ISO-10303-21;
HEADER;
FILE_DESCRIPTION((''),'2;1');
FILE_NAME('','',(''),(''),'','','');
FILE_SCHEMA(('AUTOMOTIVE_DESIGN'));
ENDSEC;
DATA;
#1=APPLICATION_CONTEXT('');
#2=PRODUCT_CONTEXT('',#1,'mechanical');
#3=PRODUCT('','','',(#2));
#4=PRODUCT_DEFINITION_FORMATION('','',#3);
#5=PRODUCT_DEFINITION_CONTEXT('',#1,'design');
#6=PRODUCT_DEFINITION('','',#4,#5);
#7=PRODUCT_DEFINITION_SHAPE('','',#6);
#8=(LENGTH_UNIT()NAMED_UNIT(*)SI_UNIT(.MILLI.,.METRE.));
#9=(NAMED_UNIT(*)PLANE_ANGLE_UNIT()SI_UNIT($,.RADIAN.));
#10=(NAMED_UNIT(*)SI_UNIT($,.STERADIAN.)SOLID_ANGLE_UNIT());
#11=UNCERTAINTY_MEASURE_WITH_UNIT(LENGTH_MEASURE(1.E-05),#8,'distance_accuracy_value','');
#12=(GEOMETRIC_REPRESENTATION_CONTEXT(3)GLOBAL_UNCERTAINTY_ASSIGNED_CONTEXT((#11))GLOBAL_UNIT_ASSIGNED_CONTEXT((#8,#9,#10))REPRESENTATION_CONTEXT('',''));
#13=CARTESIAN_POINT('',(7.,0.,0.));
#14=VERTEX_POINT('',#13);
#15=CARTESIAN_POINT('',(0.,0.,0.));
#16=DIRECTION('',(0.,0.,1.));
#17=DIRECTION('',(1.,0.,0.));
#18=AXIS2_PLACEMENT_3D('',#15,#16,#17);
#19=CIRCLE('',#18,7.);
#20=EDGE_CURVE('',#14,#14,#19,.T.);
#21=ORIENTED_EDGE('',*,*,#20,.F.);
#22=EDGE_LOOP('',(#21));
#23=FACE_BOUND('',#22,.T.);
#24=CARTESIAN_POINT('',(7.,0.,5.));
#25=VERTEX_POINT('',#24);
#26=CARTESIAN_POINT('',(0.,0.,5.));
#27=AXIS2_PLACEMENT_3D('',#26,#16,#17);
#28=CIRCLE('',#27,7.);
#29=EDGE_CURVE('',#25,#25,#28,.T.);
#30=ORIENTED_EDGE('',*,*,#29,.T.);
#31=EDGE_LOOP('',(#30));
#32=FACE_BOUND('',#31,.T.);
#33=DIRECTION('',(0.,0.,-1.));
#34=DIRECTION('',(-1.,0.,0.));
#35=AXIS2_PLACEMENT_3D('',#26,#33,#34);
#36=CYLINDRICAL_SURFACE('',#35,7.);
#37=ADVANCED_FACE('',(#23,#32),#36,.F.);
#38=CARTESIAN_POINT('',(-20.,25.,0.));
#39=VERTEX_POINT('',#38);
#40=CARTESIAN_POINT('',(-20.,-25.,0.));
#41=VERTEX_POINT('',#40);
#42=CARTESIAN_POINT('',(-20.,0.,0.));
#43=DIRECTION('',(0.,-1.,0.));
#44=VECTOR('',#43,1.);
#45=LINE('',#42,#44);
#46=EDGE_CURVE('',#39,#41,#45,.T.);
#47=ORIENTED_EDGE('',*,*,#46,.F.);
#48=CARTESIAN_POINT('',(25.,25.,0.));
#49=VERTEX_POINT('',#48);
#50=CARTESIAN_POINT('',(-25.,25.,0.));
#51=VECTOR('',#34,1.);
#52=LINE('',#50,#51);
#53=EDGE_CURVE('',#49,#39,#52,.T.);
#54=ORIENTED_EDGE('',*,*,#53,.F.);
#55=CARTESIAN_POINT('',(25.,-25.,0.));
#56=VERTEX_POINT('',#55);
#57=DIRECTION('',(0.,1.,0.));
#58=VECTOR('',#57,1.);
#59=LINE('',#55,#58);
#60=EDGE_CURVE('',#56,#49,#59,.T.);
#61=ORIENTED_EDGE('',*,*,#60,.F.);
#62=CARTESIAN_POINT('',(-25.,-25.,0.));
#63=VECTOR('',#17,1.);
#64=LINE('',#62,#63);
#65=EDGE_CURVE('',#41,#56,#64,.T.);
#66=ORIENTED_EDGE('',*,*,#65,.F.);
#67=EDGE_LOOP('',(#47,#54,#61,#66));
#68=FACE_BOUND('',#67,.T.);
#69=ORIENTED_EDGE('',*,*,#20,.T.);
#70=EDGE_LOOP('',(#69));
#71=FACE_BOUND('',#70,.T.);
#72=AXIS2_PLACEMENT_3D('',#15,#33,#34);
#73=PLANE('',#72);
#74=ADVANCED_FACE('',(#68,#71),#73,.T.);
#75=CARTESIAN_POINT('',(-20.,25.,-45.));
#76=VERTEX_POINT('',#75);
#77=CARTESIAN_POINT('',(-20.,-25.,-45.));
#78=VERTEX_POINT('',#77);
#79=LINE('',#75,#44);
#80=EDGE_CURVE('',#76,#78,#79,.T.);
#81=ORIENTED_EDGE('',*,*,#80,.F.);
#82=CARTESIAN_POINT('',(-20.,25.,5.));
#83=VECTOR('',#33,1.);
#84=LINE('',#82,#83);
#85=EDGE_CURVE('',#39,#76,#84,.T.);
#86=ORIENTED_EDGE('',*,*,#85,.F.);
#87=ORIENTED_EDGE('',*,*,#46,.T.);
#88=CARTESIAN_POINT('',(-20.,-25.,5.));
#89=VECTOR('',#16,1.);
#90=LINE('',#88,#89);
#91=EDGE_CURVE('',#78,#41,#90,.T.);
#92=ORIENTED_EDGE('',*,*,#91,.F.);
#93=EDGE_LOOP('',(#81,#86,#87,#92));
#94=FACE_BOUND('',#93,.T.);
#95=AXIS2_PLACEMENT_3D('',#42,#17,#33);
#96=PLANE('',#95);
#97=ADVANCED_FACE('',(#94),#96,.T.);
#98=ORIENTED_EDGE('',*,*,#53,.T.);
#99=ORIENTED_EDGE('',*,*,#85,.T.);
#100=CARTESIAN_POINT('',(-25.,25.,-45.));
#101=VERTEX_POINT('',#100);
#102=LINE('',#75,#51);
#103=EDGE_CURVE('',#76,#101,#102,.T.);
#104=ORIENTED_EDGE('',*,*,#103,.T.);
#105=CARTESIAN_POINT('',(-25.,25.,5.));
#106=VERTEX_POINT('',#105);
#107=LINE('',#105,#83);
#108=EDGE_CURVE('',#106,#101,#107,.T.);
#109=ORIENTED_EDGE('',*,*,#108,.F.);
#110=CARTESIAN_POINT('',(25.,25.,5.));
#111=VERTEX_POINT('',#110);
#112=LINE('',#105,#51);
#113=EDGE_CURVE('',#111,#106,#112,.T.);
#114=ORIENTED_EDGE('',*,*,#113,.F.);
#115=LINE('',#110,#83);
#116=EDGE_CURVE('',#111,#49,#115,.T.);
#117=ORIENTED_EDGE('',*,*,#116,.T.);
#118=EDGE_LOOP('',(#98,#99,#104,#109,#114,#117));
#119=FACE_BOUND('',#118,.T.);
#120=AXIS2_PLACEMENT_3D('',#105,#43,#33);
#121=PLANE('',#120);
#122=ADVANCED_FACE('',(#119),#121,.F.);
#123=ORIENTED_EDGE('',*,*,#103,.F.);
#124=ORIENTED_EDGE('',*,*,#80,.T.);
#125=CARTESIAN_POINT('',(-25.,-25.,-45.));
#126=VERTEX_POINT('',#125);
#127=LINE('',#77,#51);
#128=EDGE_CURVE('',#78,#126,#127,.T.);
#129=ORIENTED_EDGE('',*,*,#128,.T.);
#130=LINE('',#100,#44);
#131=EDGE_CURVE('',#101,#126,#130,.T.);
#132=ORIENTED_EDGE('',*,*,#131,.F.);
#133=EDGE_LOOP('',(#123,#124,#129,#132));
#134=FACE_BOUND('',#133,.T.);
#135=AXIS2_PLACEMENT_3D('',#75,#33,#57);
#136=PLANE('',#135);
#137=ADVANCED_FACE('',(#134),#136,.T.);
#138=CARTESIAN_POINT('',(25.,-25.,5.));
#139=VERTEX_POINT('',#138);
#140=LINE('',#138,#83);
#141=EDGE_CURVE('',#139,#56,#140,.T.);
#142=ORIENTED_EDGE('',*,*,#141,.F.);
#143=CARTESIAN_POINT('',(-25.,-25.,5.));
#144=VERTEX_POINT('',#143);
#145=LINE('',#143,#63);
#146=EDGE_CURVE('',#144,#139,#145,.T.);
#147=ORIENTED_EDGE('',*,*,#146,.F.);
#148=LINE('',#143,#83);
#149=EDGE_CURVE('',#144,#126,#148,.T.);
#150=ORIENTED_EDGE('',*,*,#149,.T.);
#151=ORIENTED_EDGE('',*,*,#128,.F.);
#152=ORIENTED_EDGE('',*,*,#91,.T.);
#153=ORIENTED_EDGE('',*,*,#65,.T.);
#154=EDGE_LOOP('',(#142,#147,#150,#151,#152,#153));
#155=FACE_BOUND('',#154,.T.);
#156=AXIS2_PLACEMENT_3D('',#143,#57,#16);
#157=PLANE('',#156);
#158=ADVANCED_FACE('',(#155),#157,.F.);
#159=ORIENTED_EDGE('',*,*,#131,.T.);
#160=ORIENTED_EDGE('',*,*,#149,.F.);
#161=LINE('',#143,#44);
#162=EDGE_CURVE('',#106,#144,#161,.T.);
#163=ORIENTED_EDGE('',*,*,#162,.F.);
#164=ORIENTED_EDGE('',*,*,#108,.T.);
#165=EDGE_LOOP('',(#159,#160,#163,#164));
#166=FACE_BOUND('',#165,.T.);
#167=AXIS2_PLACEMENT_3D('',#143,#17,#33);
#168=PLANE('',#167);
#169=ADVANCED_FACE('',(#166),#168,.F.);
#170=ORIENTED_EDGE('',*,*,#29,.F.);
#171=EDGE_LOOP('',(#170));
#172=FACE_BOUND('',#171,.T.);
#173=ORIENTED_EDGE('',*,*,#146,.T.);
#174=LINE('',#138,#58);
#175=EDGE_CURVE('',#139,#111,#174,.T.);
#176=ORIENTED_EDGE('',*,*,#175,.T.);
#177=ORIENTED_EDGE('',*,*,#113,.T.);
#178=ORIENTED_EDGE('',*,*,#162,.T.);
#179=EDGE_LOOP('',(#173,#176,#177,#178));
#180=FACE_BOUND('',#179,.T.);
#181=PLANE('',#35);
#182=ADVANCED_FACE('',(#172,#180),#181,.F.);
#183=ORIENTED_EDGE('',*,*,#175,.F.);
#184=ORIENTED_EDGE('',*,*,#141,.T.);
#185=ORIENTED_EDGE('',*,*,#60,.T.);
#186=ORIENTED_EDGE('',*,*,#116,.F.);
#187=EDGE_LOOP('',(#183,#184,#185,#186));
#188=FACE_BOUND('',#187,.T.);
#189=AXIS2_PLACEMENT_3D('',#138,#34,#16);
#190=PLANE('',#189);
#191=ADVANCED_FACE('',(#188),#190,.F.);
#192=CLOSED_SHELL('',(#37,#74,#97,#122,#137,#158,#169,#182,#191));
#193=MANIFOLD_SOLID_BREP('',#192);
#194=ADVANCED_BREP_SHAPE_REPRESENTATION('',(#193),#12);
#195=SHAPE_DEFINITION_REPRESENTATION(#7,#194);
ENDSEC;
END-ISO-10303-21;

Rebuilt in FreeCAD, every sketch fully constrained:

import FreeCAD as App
import Part
import Sketcher
from FreeCAD import Vector

doc = App.newDocument("Part")
params = doc.addObject("Spreadsheet::Sheet", "Params")
for row, (alias, value) in enumerate([
    ("sketch1_diameter", "14 mm"),
    ("sketch1_width", "50 mm"),
    ("pad1_length", "5 mm"),
    ("sketch2_width", "50 mm"),
    ("pad2_length", "5 mm"),
], start=1):
    params.set(f"A{row}", alias)
    params.set(f"B{row}", "=" + value)
    params.setAlias(f"B{row}", alias)

body = doc.addObject("PartDesign::Body", "Body")

sketch1 = body.newObject("Sketcher::SketchObject", "Sketch")
sketch1.AttachmentSupport = (doc.getObject("XY_Plane"), [""])
sketch1.MapMode = "FlatFace"
sketch1.addGeometry([
    Part.LineSegment(Vector(-25, 25, 0), Vector(-25, -25, 0)),
    Part.LineSegment(Vector(-25, -25, 0), Vector(25, -25, 0)),
    Part.LineSegment(Vector(25, -25, 0), Vector(25, 25, 0)),
    Part.LineSegment(Vector(25, 25, 0), Vector(-25, 25, 0)),
    Part.Circle(Vector(0, 0, 0), Vector(0, 0, 1), 7),
], False)
sketch1.addConstraint([
    Sketcher.Constraint("Coincident", 0, 2, 1, 1),
    Sketcher.Constraint("Coincident", 1, 2, 2, 1),
    Sketcher.Constraint("Coincident", 2, 2, 3, 1),
    Sketcher.Constraint("Coincident", 3, 2, 0, 1),
    Sketcher.Constraint("Vertical", 0),
    Sketcher.Constraint("Horizontal", 1),
    Sketcher.Constraint("Vertical", 2),
    Sketcher.Constraint("Horizontal", 3),
    Sketcher.Constraint("Coincident", 4, 3, -1, 1),
    Sketcher.Constraint("Symmetric", 0, 2, 2, 2, -1, 1),
    Sketcher.Constraint("Equal", 3, 0),
    Sketcher.Constraint("Diameter", 4, 14.0),
    Sketcher.Constraint("DistanceX", 1, 1, 1, 2, 50.0),
])
sketch1.setExpression("Constraints[11]", "Params.sketch1_diameter")
sketch1.setExpression("Constraints[12]", "Params.sketch1_width")
pad1 = body.newObject("PartDesign::Pad", "Pad")
pad1.Profile = sketch1
pad1.setExpression("Length", "Params.pad1_length")

sketch2 = body.newObject("Sketcher::SketchObject", "Sketch001")
sketch2.AttachmentSupport = (doc.getObject("YZ_Plane"), [""])
sketch2.MapMode = "FlatFace"
sketch2.AttachmentOffset = App.Placement(Vector(0, 0, -25), App.Rotation())
sketch2.addGeometry([
    Part.LineSegment(Vector(25, -45, 0), Vector(-25, -45, 0)),
    Part.LineSegment(Vector(-25, -45, 0), Vector(-25, 5, 0)),
    Part.LineSegment(Vector(-25, 5, 0), Vector(25, 5, 0)),
    Part.LineSegment(Vector(25, 5, 0), Vector(25, -45, 0)),
], False)
sketch2.addConstraint([
    Sketcher.Constraint("Coincident", 0, 2, 1, 1),
    Sketcher.Constraint("Coincident", 1, 2, 2, 1),
    Sketcher.Constraint("Coincident", 2, 2, 3, 1),
    Sketcher.Constraint("Coincident", 3, 2, 0, 1),
    Sketcher.Constraint("Horizontal", 0),
    Sketcher.Constraint("Vertical", 1),
    Sketcher.Constraint("Horizontal", 2),
    Sketcher.Constraint("Vertical", 3),
    Sketcher.Constraint("Equal", 2, 1),
    Sketcher.Constraint("DistanceX", 0, 2, 0, 1, 50.0),
    Sketcher.Constraint("DistanceX", 0, 2, -1, 1, 25.0),
    Sketcher.Constraint("DistanceY", 0, 2, -1, 1, 45.0),
])
sketch2.setExpression("Constraints[9]", "Params.sketch2_width")
pad2 = body.newObject("PartDesign::Pad", "Pad001")
pad2.Profile = sketch2
pad2.setExpression("Length", "Params.pad2_length")

doc.recompute()
